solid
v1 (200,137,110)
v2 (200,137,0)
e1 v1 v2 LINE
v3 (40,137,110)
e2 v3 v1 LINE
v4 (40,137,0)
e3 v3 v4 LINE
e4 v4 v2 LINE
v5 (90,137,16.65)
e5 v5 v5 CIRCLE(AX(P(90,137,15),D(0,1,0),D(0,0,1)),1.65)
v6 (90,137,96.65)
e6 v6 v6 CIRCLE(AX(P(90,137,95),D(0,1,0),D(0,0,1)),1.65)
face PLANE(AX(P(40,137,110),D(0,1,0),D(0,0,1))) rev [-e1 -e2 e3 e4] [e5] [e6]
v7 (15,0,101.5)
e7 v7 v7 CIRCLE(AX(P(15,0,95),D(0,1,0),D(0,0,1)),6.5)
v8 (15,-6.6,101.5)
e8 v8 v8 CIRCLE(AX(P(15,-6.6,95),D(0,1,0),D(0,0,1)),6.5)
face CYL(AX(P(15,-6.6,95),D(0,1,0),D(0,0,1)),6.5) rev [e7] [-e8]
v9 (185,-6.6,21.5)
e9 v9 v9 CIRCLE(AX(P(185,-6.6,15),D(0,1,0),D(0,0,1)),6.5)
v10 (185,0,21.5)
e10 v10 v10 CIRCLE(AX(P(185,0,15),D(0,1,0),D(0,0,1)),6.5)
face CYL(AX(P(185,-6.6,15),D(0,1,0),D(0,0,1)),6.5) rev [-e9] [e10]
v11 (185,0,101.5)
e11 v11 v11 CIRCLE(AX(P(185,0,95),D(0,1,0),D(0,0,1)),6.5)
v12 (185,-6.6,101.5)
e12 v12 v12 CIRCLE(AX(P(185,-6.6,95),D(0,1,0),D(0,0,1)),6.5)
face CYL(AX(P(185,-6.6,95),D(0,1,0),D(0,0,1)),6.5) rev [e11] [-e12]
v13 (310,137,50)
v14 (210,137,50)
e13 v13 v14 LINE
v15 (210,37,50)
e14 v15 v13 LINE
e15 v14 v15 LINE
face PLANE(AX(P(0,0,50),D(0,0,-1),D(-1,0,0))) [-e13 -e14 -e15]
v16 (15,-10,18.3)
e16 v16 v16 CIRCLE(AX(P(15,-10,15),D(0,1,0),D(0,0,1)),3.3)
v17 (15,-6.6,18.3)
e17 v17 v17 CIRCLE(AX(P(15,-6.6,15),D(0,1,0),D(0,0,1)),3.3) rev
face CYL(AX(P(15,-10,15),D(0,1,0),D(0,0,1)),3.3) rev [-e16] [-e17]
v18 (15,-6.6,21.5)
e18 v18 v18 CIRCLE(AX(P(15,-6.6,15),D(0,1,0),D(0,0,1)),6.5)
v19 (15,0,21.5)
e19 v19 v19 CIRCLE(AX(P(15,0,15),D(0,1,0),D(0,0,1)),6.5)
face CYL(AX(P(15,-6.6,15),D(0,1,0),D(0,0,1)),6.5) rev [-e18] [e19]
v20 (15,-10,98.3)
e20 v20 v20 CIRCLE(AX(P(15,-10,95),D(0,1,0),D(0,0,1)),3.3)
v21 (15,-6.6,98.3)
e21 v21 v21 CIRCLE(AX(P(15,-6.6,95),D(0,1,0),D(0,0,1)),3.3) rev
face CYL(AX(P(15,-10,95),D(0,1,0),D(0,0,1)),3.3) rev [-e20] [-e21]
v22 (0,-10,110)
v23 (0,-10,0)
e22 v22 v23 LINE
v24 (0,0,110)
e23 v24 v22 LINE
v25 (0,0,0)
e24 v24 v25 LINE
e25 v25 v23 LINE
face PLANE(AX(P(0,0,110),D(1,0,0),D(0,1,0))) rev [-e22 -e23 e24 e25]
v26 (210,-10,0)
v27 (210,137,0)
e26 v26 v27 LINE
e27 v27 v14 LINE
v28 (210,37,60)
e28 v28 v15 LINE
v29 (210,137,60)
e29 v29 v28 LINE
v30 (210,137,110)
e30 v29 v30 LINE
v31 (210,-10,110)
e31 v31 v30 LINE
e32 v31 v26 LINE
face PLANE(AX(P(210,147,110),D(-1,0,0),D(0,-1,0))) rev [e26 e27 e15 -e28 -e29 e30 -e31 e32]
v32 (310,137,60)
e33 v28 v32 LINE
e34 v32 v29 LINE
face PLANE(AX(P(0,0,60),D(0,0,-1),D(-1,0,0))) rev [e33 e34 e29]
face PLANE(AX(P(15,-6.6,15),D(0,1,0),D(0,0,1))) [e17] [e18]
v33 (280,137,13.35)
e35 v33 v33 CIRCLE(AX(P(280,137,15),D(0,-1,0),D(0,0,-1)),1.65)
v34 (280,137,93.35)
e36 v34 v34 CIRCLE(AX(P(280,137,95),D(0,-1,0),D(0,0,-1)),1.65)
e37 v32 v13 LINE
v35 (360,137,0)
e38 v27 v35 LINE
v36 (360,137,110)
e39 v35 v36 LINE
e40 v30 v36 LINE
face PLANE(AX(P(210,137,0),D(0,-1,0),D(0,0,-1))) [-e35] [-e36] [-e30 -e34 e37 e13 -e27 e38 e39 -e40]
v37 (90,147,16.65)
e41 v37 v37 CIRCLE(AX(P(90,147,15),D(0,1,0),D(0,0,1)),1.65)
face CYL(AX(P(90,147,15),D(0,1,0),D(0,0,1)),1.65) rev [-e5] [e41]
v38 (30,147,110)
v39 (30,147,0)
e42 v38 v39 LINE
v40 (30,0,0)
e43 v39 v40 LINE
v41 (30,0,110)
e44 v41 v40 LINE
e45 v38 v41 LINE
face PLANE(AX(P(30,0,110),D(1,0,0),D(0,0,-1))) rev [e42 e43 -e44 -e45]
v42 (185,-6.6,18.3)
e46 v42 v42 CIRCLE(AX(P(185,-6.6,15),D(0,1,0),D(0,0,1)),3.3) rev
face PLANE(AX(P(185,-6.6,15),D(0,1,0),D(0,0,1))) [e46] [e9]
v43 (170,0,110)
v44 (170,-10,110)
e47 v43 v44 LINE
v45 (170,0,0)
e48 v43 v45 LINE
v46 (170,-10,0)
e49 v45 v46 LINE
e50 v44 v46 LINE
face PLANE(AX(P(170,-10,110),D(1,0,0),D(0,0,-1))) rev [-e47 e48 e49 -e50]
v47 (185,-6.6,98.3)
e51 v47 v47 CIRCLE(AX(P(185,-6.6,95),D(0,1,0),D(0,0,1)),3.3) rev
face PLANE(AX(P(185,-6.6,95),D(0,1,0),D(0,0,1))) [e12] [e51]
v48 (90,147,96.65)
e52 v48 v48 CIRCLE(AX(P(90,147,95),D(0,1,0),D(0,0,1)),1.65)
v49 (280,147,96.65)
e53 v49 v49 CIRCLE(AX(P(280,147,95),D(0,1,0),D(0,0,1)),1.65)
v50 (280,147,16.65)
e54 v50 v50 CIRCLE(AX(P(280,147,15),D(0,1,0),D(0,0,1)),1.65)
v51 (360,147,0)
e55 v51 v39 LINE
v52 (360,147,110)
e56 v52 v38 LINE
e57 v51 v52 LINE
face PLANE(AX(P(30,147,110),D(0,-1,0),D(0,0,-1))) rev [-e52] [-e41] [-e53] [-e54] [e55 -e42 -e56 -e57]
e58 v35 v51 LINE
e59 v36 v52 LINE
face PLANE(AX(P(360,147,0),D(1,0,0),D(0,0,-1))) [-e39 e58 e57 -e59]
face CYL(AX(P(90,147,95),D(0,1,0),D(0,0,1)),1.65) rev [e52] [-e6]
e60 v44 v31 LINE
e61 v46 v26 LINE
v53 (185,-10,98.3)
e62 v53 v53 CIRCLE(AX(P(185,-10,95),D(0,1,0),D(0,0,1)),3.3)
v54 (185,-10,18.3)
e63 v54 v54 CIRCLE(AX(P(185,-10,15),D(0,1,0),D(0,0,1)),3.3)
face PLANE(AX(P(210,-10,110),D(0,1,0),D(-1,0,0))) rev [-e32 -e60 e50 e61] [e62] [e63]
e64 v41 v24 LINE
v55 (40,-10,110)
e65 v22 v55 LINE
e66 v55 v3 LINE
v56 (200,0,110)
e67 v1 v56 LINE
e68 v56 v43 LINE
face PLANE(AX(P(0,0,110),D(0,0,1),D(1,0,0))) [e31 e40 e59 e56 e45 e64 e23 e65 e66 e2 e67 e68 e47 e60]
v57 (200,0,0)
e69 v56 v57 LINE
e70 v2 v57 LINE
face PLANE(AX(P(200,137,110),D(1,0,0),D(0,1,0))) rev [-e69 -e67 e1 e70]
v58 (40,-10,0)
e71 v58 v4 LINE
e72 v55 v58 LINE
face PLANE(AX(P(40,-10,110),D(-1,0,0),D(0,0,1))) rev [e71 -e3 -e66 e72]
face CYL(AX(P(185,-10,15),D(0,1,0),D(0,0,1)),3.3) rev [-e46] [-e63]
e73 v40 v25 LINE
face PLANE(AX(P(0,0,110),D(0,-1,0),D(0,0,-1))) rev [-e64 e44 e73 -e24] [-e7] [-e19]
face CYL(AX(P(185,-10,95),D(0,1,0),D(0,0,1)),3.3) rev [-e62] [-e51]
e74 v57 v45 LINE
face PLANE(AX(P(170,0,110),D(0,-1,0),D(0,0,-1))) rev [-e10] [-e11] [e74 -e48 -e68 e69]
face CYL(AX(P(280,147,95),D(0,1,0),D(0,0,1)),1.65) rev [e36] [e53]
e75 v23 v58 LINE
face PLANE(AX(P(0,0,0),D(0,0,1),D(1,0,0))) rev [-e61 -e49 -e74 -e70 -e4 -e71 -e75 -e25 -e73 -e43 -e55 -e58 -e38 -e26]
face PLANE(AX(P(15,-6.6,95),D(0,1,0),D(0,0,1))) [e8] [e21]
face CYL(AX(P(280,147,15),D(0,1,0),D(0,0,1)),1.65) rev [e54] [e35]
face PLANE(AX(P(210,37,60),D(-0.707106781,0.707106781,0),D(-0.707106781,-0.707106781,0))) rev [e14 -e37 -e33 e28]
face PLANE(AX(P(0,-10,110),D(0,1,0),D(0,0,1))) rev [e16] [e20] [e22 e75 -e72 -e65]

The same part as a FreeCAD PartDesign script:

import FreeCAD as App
import Part
import Sketcher

V = App.Vector
Q = App.Units.Quantity

doc = App.newDocument("Part")
params = doc.addObject("Spreadsheet::Sheet", "Params")
for row, (alias, value) in enumerate([
    ("sketch1_width", "30 mm"),
    ("sketch1_width2", "40 mm"),
    ("sketch1_width3", "160 mm"),
    ("sketch1_height", "10 mm"),
    ("sketch1_height2", "147 mm"),
    ("pad1_length", "110 mm"),
    ("sketch2_diameter", "6.6 mm"),
    ("sketch3_diameter", "13 mm"),
    ("pocket2_length", "6.6 mm"),
    ("sketch4_width", "150 mm"),
    ("sketch4_height", "10 mm"),
    ("pad2_length", "110 mm"),
    ("sketch5_width", "100 mm"),
    ("pad3_length", "10 mm"),
    ("sketch6_diameter", "3.3 mm"),
    ("hole_diameter", "3.3 mm"),
], start=1):
    params.set(f"A{row}", alias)
    params.set(f"B{row}", "=" + value)
    params.setAlias(f"B{row}", alias)

body = doc.addObject("PartDesign::Body", "Body")

sketch1 = body.newObject("Sketcher::SketchObject", "Sketch")
sketch1.AttachmentSupport = (doc.getObject("XY_Plane"), [""])
sketch1.MapMode = "FlatFace"
sketch1.addGeometry([
    Part.LineSegment(V(30, 0, 0), V(0, 0, 0)),
    Part.LineSegment(V(0, 0, 0), V(0, -10, 0)),
    Part.LineSegment(V(0, -10, 0), V(40, -10, 0)),
    Part.LineSegment(V(40, -10, 0), V(40, 137, 0)),
    Part.LineSegment(V(40, 137, 0), V(200, 137, 0)),
    Part.LineSegment(V(200, 137, 0), V(200, 0, 0)),
    Part.LineSegment(V(200, 0, 0), V(170, 0, 0)),
    Part.LineSegment(V(170, 0, 0), V(170, -10, 0)),
    Part.LineSegment(V(170, -10, 0), V(210, -10, 0)),
    Part.LineSegment(V(210, -10, 0), V(210, 147, 0)),
    Part.LineSegment(V(210, 147, 0), V(30, 147, 0)),
    Part.LineSegment(V(30, 147, 0), V(30, 0, 0)),
], False)
sketch1.addConstraint([
    Sketcher.Constraint("Coincident", 0, 2, 1, 1),
    Sketcher.Constraint("Coincident", 1, 2, 2, 1),
    Sketcher.Constraint("Coincident", 2, 2, 3, 1),
    Sketcher.Constraint("Coincident", 3, 2, 4, 1),
    Sketcher.Constraint("Coincident", 4, 2, 5, 1),
    Sketcher.Constraint("Coincident", 5, 2, 6, 1),
    Sketcher.Constraint("Coincident", 6, 2, 7, 1),
    Sketcher.Constraint("Coincident", 7, 2, 8, 1),
    Sketcher.Constraint("Coincident", 8, 2, 9, 1),
    Sketcher.Constraint("Coincident", 9, 2, 10, 1),
    Sketcher.Constraint("Coincident", 10, 2, 11, 1),
    Sketcher.Constraint("Coincident", 11, 2, 0, 1),
    Sketcher.Constraint("Horizontal", 0),
    Sketcher.Constraint("Vertical", 1),
    Sketcher.Constraint("Horizontal", 2),
    Sketcher.Constraint("Vertical", 3),
    Sketcher.Constraint("Horizontal", 4),
    Sketcher.Constraint("Vertical", 5),
    Sketcher.Constraint("Horizontal", 6),
    Sketcher.Constraint("Vertical", 7),
    Sketcher.Constraint("Horizontal", 8),
    Sketcher.Constraint("Vertical", 9),
    Sketcher.Constraint("Horizontal", 10),
    Sketcher.Constraint("Vertical", 11),
    Sketcher.Constraint("Coincident", 0, 2, -1, 1),
    Sketcher.Constraint("PointOnObject", 5, 2, -1),
    Sketcher.Constraint("Horizontal", 2, 2, 7, 2),
    Sketcher.Constraint("Equal", 0, 6),
    Sketcher.Constraint("Equal", 2, 8),
    Sketcher.Constraint("Equal", 3, 11),
    Sketcher.Constraint("DistanceX", 0, 2, 0, 1, Q("30 mm")),
    Sketcher.Constraint("DistanceX", 2, 1, 2, 2, Q("40 mm")),
    Sketcher.Constraint("DistanceX", 4, 1, 4, 2, Q("160 mm")),
    Sketcher.Constraint("DistanceY", 1, 2, 1, 1, Q("10 mm")),
    Sketcher.Constraint("DistanceY", 3, 1, 3, 2, Q("147 mm")),
])
sketch1.setExpression("Constraints[30]", "Params.sketch1_width")
sketch1.setExpression("Constraints[31]", "Params.sketch1_width2")
sketch1.setExpression("Constraints[32]", "Params.sketch1_width3")
sketch1.setExpression("Constraints[33]", "Params.sketch1_height")
sketch1.setExpression("Constraints[34]", "Params.sketch1_height2")
pad1 = body.newObject("PartDesign::Pad", "Pad")
pad1.Profile = sketch1
pad1.setExpression("Length", "Params.pad1_length")

sketch2 = body.newObject("Sketcher::SketchObject", "Sketch001")
sketch2.AttachmentSupport = (doc.getObject("XZ_Plane"), [""])
sketch2.MapMode = "FlatFace"
sketch2.addGeometry([
    Part.Circle(V(15, 15, 0), V(0, 0, 1), 3.3),
    Part.Circle(V(15, 95, 0), V(0, 0, 1), 3.3),
    Part.Circle(V(185, 95, 0), V(0, 0, 1), 3.3),
    Part.Circle(V(185, 15, 0), V(0, 0, 1), 3.3),
], False)
sketch2.addConstraint([
    Sketcher.Constraint("Equal", 0, 1),
    Sketcher.Constraint("Equal", 1, 2),
    Sketcher.Constraint("Equal", 2, 3),
    Sketcher.Constraint("Horizontal", 1, 3, 2, 3),
    Sketcher.Constraint("Horizontal", 0, 3, 3, 3),
    Sketcher.Constraint("Vertical", 0, 3, 1, 3),
    Sketcher.Constraint("Vertical", 2, 3, 3, 3),
    Sketcher.Constraint("Diameter", 0, Q("6.6 mm")),
    Sketcher.Constraint("DistanceX", -1, 1, 0, 3, Q("15 mm")),
    Sketcher.Constraint("DistanceY", -1, 1, 0, 3, Q("15 mm")),
    Sketcher.Constraint("DistanceY", -1, 1, 1, 3, Q("95 mm")),
    Sketcher.Constraint("DistanceX", -1, 1, 2, 3, Q("185 mm")),
])
sketch2.setExpression("Constraints[7]", "Params.sketch2_diameter")
pocket1 = body.newObject("PartDesign::Pocket", "Pocket")
pocket1.Profile = sketch2
pocket1.Type = "ThroughAll"
pocket1.Reversed = True

sketch3 = body.newObject("Sketcher::SketchObject", "Sketch002")
sketch3.AttachmentSupport = (doc.getObject("XZ_Plane"), [""])
sketch3.MapMode = "FlatFace"
sketch3.addGeometry([
    Part.Circle(V(15, 15, 0), V(0, 0, 1), 6),
    Part.Circle(V(15, 95, 0), V(0, 0, 1), 6),
    Part.Circle(V(185, 95, 0), V(0, 0, 1), 6),
    Part.Circle(V(185, 15, 0), V(0, 0, 1), 6),
], False)
sketch3.addConstraint([
    Sketcher.Constraint("Equal", 0, 1),
    Sketcher.Constraint("Equal", 1, 2),
    Sketcher.Constraint("Equal", 2, 3),
    Sketcher.Constraint("Horizontal", 1, 3, 2, 3),
    Sketcher.Constraint("Horizontal", 0, 3, 3, 3),
    Sketcher.Constraint("Vertical", 0, 3, 1, 3),
    Sketcher.Constraint("Vertical", 2, 3, 3, 3),
    Sketcher.Constraint("Diameter", 0, Q("13 mm")),
    Sketcher.Constraint("DistanceX", -1, 1, 0, 3, Q("15 mm")),
    Sketcher.Constraint("DistanceY", -1, 1, 0, 3, Q("15 mm")),
    Sketcher.Constraint("DistanceY", -1, 1, 1, 3, Q("95 mm")),
    Sketcher.Constraint("DistanceX", -1, 1, 2, 3, Q("185 mm")),
])
sketch3.setExpression("Constraints[7]", "Params.sketch3_diameter")
pocket2 = body.newObject("PartDesign::Pocket", "Pocket001")
pocket2.Profile = sketch3
pocket2.setExpression("Length", "Params.pocket2_length")
pocket2.Reversed = True

sketch4 = body.newObject("Sketcher::SketchObject", "Sketch003")
sketch4.AttachmentSupport = (doc.getObject("XY_Plane"), [""])
sketch4.MapMode = "FlatFace"
sketch4.AttachmentOffset = App.Placement(V(0, 0, 110), App.Rotation())
sketch4.addGeometry([
    Part.LineSegment(V(210, 147, 0), V(210, 137, 0)),
    Part.LineSegment(V(210, 137, 0), V(360, 137, 0)),
    Part.LineSegment(V(360, 137, 0), V(360, 147, 0)),
    Part.LineSegment(V(360, 147, 0), V(210, 147, 0)),
], False)
sketch4.addConstraint([
    Sketcher.Constraint("Coincident", 0, 2, 1, 1),
    Sketcher.Constraint("Coincident", 1, 2, 2, 1),
    Sketcher.Constraint("Coincident", 2, 2, 3, 1),
    Sketcher.Constraint("Coincident", 3, 2, 0, 1),
    Sketcher.Constraint("Vertical", 0),
    Sketcher.Constraint("Horizontal", 1),
    Sketcher.Constraint("Vertical", 2),
    Sketcher.Constraint("Horizontal", 3),
    Sketcher.Constraint("DistanceX", 1, 1, 1, 2, Q("150 mm")),
    Sketcher.Constraint("DistanceY", 0, 2, 0, 1, Q("10 mm")),
    Sketcher.Constraint("DistanceX", -1, 1, 0, 2, Q("210 mm")),
    Sketcher.Constraint("DistanceY", -1, 1, 0, 2, Q("137 mm")),
])
sketch4.setExpression("Constraints[8]", "Params.sketch4_width")
sketch4.setExpression("Constraints[9]", "Params.sketch4_height")
pad2 = body.newObject("PartDesign::Pad", "Pad001")
pad2.Profile = sketch4
pad2.setExpression("Length", "Params.pad2_length")
pad2.Reversed = True

sketch5 = body.newObject("Sketcher::SketchObject", "Sketch004")
sketch5.AttachmentSupport = (doc.getObject("XY_Plane"), [""])
sketch5.MapMode = "FlatFace"
sketch5.AttachmentOffset = App.Placement(V(0, 0, 55), App.Rotation())
sketch5.addGeometry([
    Part.LineSegment(V(210, 37, 0), V(310, 137, 0)),
    Part.LineSegment(V(310, 137, 0), V(210, 137, 0)),
    Part.LineSegment(V(210, 137, 0), V(210, 37, 0)),
], False)
sketch5.addConstraint([
    Sketcher.Constraint("Coincident", 0, 2, 1, 1),
    Sketcher.Constraint("Coincident", 1, 2, 2, 1),
    Sketcher.Constraint("Coincident", 2, 2, 0, 1),
    Sketcher.Constraint("Horizontal", 1),
    Sketcher.Constraint("Vertical", 2),
    Sketcher.Constraint("Equal", 1, 2),
    Sketcher.Constraint("DistanceX", 1, 2, 1, 1, Q("100 mm")),
    Sketcher.Constraint("DistanceX", -1, 1, 0, 2, Q("310 mm")),
    Sketcher.Constraint("DistanceY", -1, 1, 0, 2, Q("137 mm")),
])
sketch5.setExpression("Constraints[6]", "Params.sketch5_width")
pad3 = body.newObject("PartDesign::Pad", "Pad002")
pad3.Profile = sketch5
pad3.setExpression("Length", "Params.pad3_length")
pad3.Midplane = True

sketch6 = body.newObject("Sketcher::SketchObject", "Sketch005")
sketch6.AttachmentSupport = (doc.getObject("XZ_Plane"), [""])
sketch6.MapMode = "FlatFace"
sketch6.AttachmentOffset = App.Placement(V(0, 0, -147), App.Rotation())
sketch6.addGeometry([
    Part.Circle(V(90, 15, 0), V(0, 0, 1), 1.6),
    Part.Circle(V(280, 15, 0), V(0, 0, 1), 1.6),
    Part.Circle(V(280, 95, 0), V(0, 0, 1), 1.6),
    Part.Circle(V(90, 95, 0), V(0, 0, 1), 1.6),
], False)
sketch6.addConstraint([
    Sketcher.Constraint("Equal", 0, 1),
    Sketcher.Constraint("Equal", 1, 2),
    Sketcher.Constraint("Equal", 2, 3),
    Sketcher.Constraint("Horizontal", 0, 3, 1, 3),
    Sketcher.Constraint("Horizontal", 2, 3, 3, 3),
    Sketcher.Constraint("Vertical", 1, 3, 2, 3),
    Sketcher.Constraint("Vertical", 0, 3, 3, 3),
    Sketcher.Constraint("Diameter", 0, Q("3.3 mm")),
    Sketcher.Constraint("DistanceX", -1, 1, 0, 3, Q("90 mm")),
    Sketcher.Constraint("DistanceY", -1, 1, 0, 3, Q("15 mm")),
    Sketcher.Constraint("DistanceX", -1, 1, 1, 3, Q("280 mm")),
    Sketcher.Constraint("DistanceY", -1, 1, 2, 3, Q("95 mm")),
])
sketch6.setExpression("Constraints[7]", "Params.sketch6_diameter")
doc.recompute()
hole = body.newObject("PartDesign::Hole", "Hole")
hole.Profile = sketch6
hole.ThreadType = "None"
hole.setExpression("Diameter", "Params.hole_diameter")
hole.DepthType = "ThroughAll"
hole.Reversed = True

doc.recompute()
